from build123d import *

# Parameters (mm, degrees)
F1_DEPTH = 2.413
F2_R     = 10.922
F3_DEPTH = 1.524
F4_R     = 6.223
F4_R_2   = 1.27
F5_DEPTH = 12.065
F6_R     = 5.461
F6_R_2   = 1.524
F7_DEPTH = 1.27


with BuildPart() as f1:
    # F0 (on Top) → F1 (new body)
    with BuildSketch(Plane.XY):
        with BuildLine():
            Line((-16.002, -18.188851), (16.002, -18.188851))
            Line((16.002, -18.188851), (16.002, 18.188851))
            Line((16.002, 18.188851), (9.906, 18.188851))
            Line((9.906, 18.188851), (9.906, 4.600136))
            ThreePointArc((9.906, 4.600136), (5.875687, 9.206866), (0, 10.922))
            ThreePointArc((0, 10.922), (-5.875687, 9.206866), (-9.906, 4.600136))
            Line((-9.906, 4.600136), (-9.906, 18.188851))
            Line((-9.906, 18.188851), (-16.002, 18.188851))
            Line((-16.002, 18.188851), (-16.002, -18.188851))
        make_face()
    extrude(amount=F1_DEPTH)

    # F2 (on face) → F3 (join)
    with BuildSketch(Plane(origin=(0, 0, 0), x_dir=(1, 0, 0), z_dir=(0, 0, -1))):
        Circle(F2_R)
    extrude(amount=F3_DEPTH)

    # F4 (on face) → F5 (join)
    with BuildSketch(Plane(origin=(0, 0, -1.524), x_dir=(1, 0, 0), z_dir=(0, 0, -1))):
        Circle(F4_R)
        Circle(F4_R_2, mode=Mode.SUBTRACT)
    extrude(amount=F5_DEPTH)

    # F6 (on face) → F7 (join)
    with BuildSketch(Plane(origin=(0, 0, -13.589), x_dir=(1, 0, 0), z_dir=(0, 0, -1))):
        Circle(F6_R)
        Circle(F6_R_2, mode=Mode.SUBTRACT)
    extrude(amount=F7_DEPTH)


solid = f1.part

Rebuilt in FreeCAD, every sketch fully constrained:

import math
import FreeCAD as App
import Part
import Sketcher
Q = App.Units.Quantity

doc = App.newDocument("Part")
body = doc.addObject("PartDesign::Body", "Body")

# Sketch on XY plane
sketch1 = doc.addObject("Sketcher::SketchObject", "Sketch")
body.addObject(sketch1)
sketch1.AttachmentSupport = (doc.XY_Plane, [""])
sketch1.MapMode = "FlatFace"
sketch1.addGeometry([
    Part.LineSegment(App.Vector(-16, -18, 0), App.Vector(16, -18, 0)),  # 0
    Part.LineSegment(App.Vector(16, -18, 0), App.Vector(16, 18, 0)),  # 1
    Part.LineSegment(App.Vector(16, 18, 0), App.Vector(10, 18, 0)),  # 2
    Part.LineSegment(App.Vector(10, 18, 0), App.Vector(10, 5, 0)),  # 3
    Part.ArcOfCircle(Part.Circle(App.Vector(0, 0, 0), App.Vector(0, 0, 1), 11), math.radians(25), math.radians(90)),  # 4
    Part.ArcOfCircle(Part.Circle(App.Vector(0, 0, 0), App.Vector(0, 0, 1), 11), math.radians(90), math.radians(155)),  # 5
    Part.LineSegment(App.Vector(-10, 5, 0), App.Vector(-10, 18, 0)),  # 6
    Part.LineSegment(App.Vector(-10, 18, 0), App.Vector(-16, 18, 0)),  # 7
    Part.LineSegment(App.Vector(-16, 18, 0), App.Vector(-16, -18, 0)),  # 8
], False)
sketch1.addConstraint([
    Sketcher.Constraint("Coincident", 0, 2, 1, 1),
    Sketcher.Constraint("Coincident", 1, 2, 2, 1),
    Sketcher.Constraint("Coincident", 2, 2, 3, 1),
    Sketcher.Constraint("Coincident", 3, 2, 4, 1),
    Sketcher.Constraint("Tangent", 4, 2, 5, 1),
    Sketcher.Constraint("Coincident", 5, 2, 6, 1),
    Sketcher.Constraint("Coincident", 6, 2, 7, 1),
    Sketcher.Constraint("Coincident", 7, 2, 8, 1),
    Sketcher.Constraint("Coincident", 8, 2, 0, 1),
    Sketcher.Constraint("Horizontal", 0),
    Sketcher.Constraint("Vertical", 1),
    Sketcher.Constraint("Horizontal", 2),
    Sketcher.Constraint("Vertical", 3),
    Sketcher.Constraint("Vertical", 6),
    Sketcher.Constraint("Horizontal", 7),
    Sketcher.Constraint("Vertical", 8),
    Sketcher.Constraint("Coincident", 4, 3, -1, 1),
    Sketcher.Constraint("Equal", 4, 5),
    Sketcher.Constraint("Symmetric", 0, 2, 7, 2, -1, 1),
    Sketcher.Constraint("Symmetric", 2, 2, 6, 2, -2),
    Sketcher.Constraint("PointOnObject", 4, 2, -2),
    Sketcher.Constraint("Radius", 4, Q("0.4300001 in")),
    Sketcher.Constraint("DistanceX", 0, 1, 0, 2, Q("1.26 in")),
    Sketcher.Constraint("DistanceX", 2, 2, 2, 1, Q("0.24 in")),
    Sketcher.Constraint("DistanceY", 1, 1, 1, 2, 36.377702),
])
pad1 = doc.addObject("PartDesign::Pad", "Pad")
body.addObject(pad1)
pad1.Profile = sketch1
pad1.Length = Q("0.095 in")

# Sketch on XY plane
sketch2 = doc.addObject("Sketcher::SketchObject", "Sketch001")
body.addObject(sketch2)
sketch2.AttachmentSupport = (doc.XY_Plane, [""])
sketch2.MapMode = "FlatFace"
sketch2.addGeometry(Part.Circle(App.Vector(0, 0, 0), App.Vector(0, 0, 1), 11), False)
sketch2.addConstraint([
    Sketcher.Constraint("Coincident", 0, 3, -1, 1),
    Sketcher.Constraint("Diameter", 0, Q("0.86 in")),
])
pad2 = doc.addObject("PartDesign::Pad", "Pad001")
body.addObject(pad2)
pad2.Profile = sketch2
pad2.Length = Q("0.06 in")
pad2.Reversed = True

# Sketch on XY plane
sketch3 = doc.addObject("Sketcher::SketchObject", "Sketch002")
body.addObject(sketch3)
sketch3.AttachmentSupport = (doc.XY_Plane, [""])
sketch3.MapMode = "FlatFace"
sketch3.AttachmentOffset = App.Placement(App.Vector(0, 0, -0.06 * 25.4), App.Rotation())
sketch3.addGeometry([
    Part.Circle(App.Vector(0, 0, 0), App.Vector(0, 0, 1), 6.2),
    Part.Circle(App.Vector(0, 0, 0), App.Vector(0, 0, 1), 1.3),
], False)
sketch3.addConstraint([
    Sketcher.Constraint("Coincident", 0, 3, -1, 1),
    Sketcher.Constraint("Coincident", 1, 3, -1, 1),
    Sketcher.Constraint("Diameter", 1, Q("0.1 in")),
    Sketcher.Constraint("Diameter", 0, Q("0.49 in")),
])
pad3 = doc.addObject("PartDesign::Pad", "Pad002")
body.addObject(pad3)
pad3.Profile = sketch3
pad3.Length = Q("0.475 in")
pad3.Reversed = True

# Sketch on XY plane
sketch4 = doc.addObject("Sketcher::SketchObject", "Sketch003")
body.addObject(sketch4)
sketch4.AttachmentSupport = (doc.XY_Plane, [""])
sketch4.MapMode = "FlatFace"
sketch4.AttachmentOffset = App.Placement(App.Vector(0, 0, -0.535 * 25.4), App.Rotation())
sketch4.addGeometry([
    Part.Circle(App.Vector(0, 0, 0), App.Vector(0, 0, 1), 5.5),
    Part.Circle(App.Vector(0, 0, 0), App.Vector(0, 0, 1), 1.5),
], False)
sketch4.addConstraint([
    Sketcher.Constraint("Coincident", 0, 3, -1, 1),
    Sketcher.Constraint("Coincident", 1, 3, -1, 1),
    Sketcher.Constraint("Diameter", 0, Q("0.43 in")),
    Sketcher.Constraint("Diameter", 1, Q("0.12 in")),
])
pad4 = doc.addObject("PartDesign::Pad", "Pad003")
body.addObject(pad4)
pad4.Profile = sketch4
pad4.Length = Q("0.05 in")
pad4.Reversed = True

doc.recompute()
